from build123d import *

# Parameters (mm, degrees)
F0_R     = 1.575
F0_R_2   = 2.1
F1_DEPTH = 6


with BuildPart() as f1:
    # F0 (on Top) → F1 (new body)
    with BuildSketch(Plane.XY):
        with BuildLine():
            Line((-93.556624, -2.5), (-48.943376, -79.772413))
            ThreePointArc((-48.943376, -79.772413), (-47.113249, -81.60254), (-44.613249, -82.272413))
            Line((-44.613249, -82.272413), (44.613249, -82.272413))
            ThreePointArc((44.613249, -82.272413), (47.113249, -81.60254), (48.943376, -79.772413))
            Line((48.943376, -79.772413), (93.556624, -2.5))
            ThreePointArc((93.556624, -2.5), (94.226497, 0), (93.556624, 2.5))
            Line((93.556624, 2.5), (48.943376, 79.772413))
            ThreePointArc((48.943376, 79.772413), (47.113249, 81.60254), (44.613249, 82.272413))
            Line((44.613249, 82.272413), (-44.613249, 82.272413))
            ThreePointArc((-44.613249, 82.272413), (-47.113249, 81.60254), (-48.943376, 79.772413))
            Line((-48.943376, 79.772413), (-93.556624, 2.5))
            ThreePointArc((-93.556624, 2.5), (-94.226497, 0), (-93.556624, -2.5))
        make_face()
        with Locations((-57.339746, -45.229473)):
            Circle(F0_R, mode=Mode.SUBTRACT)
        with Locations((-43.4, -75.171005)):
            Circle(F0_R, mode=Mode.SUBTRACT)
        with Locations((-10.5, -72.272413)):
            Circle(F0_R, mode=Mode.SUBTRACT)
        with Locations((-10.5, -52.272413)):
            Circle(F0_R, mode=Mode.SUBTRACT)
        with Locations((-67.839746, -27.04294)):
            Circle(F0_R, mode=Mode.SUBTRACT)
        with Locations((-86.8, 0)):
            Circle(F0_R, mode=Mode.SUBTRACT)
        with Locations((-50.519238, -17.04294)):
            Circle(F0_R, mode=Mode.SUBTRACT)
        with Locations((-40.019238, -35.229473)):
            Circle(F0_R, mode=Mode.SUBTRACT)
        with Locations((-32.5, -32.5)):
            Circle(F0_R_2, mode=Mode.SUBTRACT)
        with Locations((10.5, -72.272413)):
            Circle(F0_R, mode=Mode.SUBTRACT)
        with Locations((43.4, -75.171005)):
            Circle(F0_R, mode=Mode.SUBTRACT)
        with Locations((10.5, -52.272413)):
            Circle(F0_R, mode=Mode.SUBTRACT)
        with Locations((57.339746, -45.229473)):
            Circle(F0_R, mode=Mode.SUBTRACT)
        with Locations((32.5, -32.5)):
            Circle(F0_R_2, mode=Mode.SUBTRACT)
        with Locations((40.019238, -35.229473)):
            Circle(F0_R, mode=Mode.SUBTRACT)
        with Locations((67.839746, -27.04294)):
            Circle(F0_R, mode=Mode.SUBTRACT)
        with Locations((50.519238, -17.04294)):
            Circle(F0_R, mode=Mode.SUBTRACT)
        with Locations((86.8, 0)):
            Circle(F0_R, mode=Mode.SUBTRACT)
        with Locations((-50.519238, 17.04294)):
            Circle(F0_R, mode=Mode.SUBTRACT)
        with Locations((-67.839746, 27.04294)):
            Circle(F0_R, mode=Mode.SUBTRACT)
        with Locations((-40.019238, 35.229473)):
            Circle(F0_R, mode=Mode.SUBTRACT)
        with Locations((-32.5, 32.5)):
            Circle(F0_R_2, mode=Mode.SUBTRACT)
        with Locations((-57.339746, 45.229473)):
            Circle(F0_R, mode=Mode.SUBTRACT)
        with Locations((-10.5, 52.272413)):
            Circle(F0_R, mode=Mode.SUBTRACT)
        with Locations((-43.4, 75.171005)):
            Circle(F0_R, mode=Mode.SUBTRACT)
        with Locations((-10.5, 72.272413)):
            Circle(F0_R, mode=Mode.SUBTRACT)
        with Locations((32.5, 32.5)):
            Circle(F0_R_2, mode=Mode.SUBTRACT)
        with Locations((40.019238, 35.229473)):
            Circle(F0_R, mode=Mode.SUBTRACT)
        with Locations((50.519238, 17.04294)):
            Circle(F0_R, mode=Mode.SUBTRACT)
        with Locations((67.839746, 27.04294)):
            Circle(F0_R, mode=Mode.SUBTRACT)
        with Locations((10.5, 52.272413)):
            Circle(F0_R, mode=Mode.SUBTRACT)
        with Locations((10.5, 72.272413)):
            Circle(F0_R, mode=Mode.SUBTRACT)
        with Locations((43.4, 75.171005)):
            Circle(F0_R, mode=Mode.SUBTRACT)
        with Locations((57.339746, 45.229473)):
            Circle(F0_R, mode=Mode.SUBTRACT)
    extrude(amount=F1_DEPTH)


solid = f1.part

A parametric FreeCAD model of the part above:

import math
import FreeCAD as App
import Part
import Sketcher
from FreeCAD import Vector
Q = App.Units.Quantity

doc = App.newDocument("Part")
params = doc.addObject("Spreadsheet::Sheet", "Params")
for row, (alias, value) in enumerate([
    ("sketch1_radius", "5 mm"),
    ("sketch1_diameter", "4.2 mm"),
    ("sketch1_diameter2", "3.15 mm"),
    ("pad1_length", "6 mm"),
], start=1):
    params.set(f"A{row}", alias)
    params.set(f"B{row}", "=" + value)
    params.setAlias(f"B{row}", alias)

body = doc.addObject("PartDesign::Body", "Body")

sketch1 = doc.addObject("Sketcher::SketchObject", "Sketch")
body.addObject(sketch1)
sketch1.AttachmentSupport = (doc.XY_Plane, [""])
sketch1.MapMode = "FlatFace"
sketch1.addGeometry([
    Part.LineSegment(Vector(-93.6, -2.5, 0), Vector(-48.9, -79.8, 0)),
    Part.ArcOfCircle(Part.Circle(Vector(-44.6, -77.3, 0), Vector(0, 0, 1), 5), math.radians(-150), math.radians(-90)),
    Part.LineSegment(Vector(-44.6, -82.3, 0), Vector(44.6, -82.3, 0)),
    Part.ArcOfCircle(Part.Circle(Vector(44.6, -77.3, 0), Vector(0, 0, 1), 5), math.radians(-90), math.radians(-30)),
    Part.LineSegment(Vector(48.9, -79.8, 0), Vector(93.6, -2.5, 0)),
    Part.ArcOfCircle(Part.Circle(Vector(89.2, 0, 0), Vector(0, 0, 1), 5), math.radians(-30), math.radians(30)),
    Part.LineSegment(Vector(93.6, 2.5, 0), Vector(48.9, 79.8, 0)),
    Part.ArcOfCircle(Part.Circle(Vector(44.6, 77.3, 0), Vector(0, 0, 1), 5), math.radians(30), math.radians(90)),
    Part.LineSegment(Vector(44.6, 82.3, 0), Vector(-44.6, 82.3, 0)),
    Part.ArcOfCircle(Part.Circle(Vector(-44.6, 77.3, 0), Vector(0, 0, 1), 5), math.radians(90), math.radians(150)),
    Part.LineSegment(Vector(-48.9, 79.8, 0), Vector(-93.6, 2.5, 0)),
    Part.ArcOfCircle(Part.Circle(Vector(-89.2, 0, 0), Vector(0, 0, 1), 5), math.radians(150), math.radians(210)),
    Part.Circle(Vector(-57.3, -45.2, 0), Vector(0, 0, 1), 1.6),
    Part.Circle(Vector(-43.4, -75.2, 0), Vector(0, 0, 1), 1.6),
    Part.Circle(Vector(-10.5, -72.3, 0), Vector(0, 0, 1), 1.6),
    Part.Circle(Vector(-10.5, -52.3, 0), Vector(0, 0, 1), 1.6),
    Part.Circle(Vector(-67.8, -27, 0), Vector(0, 0, 1), 1.6),
    Part.Circle(Vector(-50.5, -17, 0), Vector(0, 0, 1), 1.6),
    Part.Circle(Vector(-40, -35.2, 0), Vector(0, 0, 1), 1.6),
    Part.Circle(Vector(-32.5, -32.5, 0), Vector(0, 0, 1), 2.1),
    Part.Circle(Vector(10.5, -72.3, 0), Vector(0, 0, 1), 1.6),
    Part.Circle(Vector(43.4, -75.2, 0), Vector(0, 0, 1), 1.6),
    Part.Circle(Vector(10.5, -52.3, 0), Vector(0, 0, 1), 1.6),
    Part.Circle(Vector(57.3, -45.2, 0), Vector(0, 0, 1), 1.6),
    Part.Circle(Vector(32.5, -32.5, 0), Vector(0, 0, 1), 2.1),
    Part.Circle(Vector(40, -35.2, 0), Vector(0, 0, 1), 1.6),
    Part.Circle(Vector(67.8, -27, 0), Vector(0, 0, 1), 1.6),
    Part.Circle(Vector(50.5, -17, 0), Vector(0, 0, 1), 1.6),
    Part.Circle(Vector(-86.8, 0, 0), Vector(0, 0, 1), 1.6),
    Part.Circle(Vector(-50.5, 17, 0), Vector(0, 0, 1), 1.6),
    Part.Circle(Vector(-67.8, 27, 0), Vector(0, 0, 1), 1.6),
    Part.Circle(Vector(-40, 35.2, 0), Vector(0, 0, 1), 1.6),
    Part.Circle(Vector(-32.5, 32.5, 0), Vector(0, 0, 1), 2.1),
    Part.Circle(Vector(-57.3, 45.2, 0), Vector(0, 0, 1), 1.6),
    Part.Circle(Vector(-10.5, 52.3, 0), Vector(0, 0, 1), 1.6),
    Part.Circle(Vector(-43.4, 75.2, 0), Vector(0, 0, 1), 1.6),
    Part.Circle(Vector(-10.5, 72.3, 0), Vector(0, 0, 1), 1.6),
    Part.Circle(Vector(32.5, 32.5, 0), Vector(0, 0, 1), 2.1),
    Part.Circle(Vector(40, 35.2, 0), Vector(0, 0, 1), 1.6),
    Part.Circle(Vector(50.5, 17, 0), Vector(0, 0, 1), 1.6),
    Part.Circle(Vector(86.8, 0, 0), Vector(0, 0, 1), 1.6),
    Part.Circle(Vector(67.8, 27, 0), Vector(0, 0, 1), 1.6),
    Part.Circle(Vector(10.5, 52.3, 0), Vector(0, 0, 1), 1.6),
    Part.Circle(Vector(10.5, 72.3, 0), Vector(0, 0, 1), 1.6),
    Part.Circle(Vector(43.4, 75.2, 0), Vector(0, 0, 1), 1.6),
    Part.Circle(Vector(57.3, 45.2, 0), Vector(0, 0, 1), 1.6),
], False)
sketch1.addConstraint([
    Sketcher.Constraint("Tangent", 0, 2, 1, 1),
    Sketcher.Constraint("Tangent", 1, 2, 2, 1),
    Sketcher.Constraint("Tangent", 2, 2, 3, 1),
    Sketcher.Constraint("Tangent", 3, 2, 4, 1),
    Sketcher.Constraint("Tangent", 4, 2, 5, 1),
    Sketcher.Constraint("Tangent", 5, 2, 6, 1),
    Sketcher.Constraint("Tangent", 6, 2, 7, 1),
    Sketcher.Constraint("Tangent", 7, 2, 8, 1),
    Sketcher.Constraint("Tangent", 8, 2, 9, 1),
    Sketcher.Constraint("Tangent", 9, 2, 10, 1),
    Sketcher.Constraint("Tangent", 10, 2, 11, 1),
    Sketcher.Constraint("Tangent", 11, 2, 0, 1),
    Sketcher.Constraint("Horizontal", 2),
    Sketcher.Constraint("Horizontal", 8),
    Sketcher.Constraint("Equal", 1, 3),
    Sketcher.Constraint("Equal", 3, 5),
    Sketcher.Constraint("Equal", 5, 7),
    Sketcher.Constraint("Equal", 7, 9),
    Sketcher.Constraint("Equal", 9, 11),
    Sketcher.Constraint("Equal", 12, 13),
    Sketcher.Constraint("Equal", 13, 14),
    Sketcher.Constraint("Equal", 14, 15),
    Sketcher.Constraint("Equal", 15, 16),
    Sketcher.Constraint("Equal", 16, 17),
    Sketcher.Constraint("Equal", 17, 18),
    Sketcher.Constraint("Equal", 18, 20),
    Sketcher.Constraint("Equal", 20, 21),
    Sketcher.Constraint("Equal", 21, 22),
    Sketcher.Constraint("Equal", 22, 23),
    Sketcher.Constraint("Equal", 19, 24),
    Sketcher.Constraint("Equal", 23, 25),
    Sketcher.Constraint("Equal", 25, 26),
    Sketcher.Constraint("Equal", 26, 27),
    Sketcher.Constraint("Equal", 27, 28),
    Sketcher.Constraint("Equal", 28, 29),
    Sketcher.Constraint("Equal", 29, 30),
    Sketcher.Constraint("Equal", 30, 31),
    Sketcher.Constraint("Equal", 24, 32),
    Sketcher.Constraint("Equal", 31, 33),
    Sketcher.Constraint("Equal", 33, 34),
    Sketcher.Constraint("Equal", 34, 35),
    Sketcher.Constraint("Equal", 35, 36),
    Sketcher.Constraint("Equal", 32, 37),
    Sketcher.Constraint("Equal", 36, 38),
    Sketcher.Constraint("Equal", 38, 39),
    Sketcher.Constraint("Equal", 39, 40),
    Sketcher.Constraint("Equal", 40, 41),
    Sketcher.Constraint("Equal", 41, 42),
    Sketcher.Constraint("Equal", 42, 43),
    Sketcher.Constraint("Equal", 43, 44),
    Sketcher.Constraint("Equal", 44, 45),
    Sketcher.Constraint("Symmetric", 1, 3, 7, 3, -1, 1),
    Sketcher.Constraint("Symmetric", 5, 3, 11, 3, -1, 1),
    Sketcher.Constraint("Symmetric", 27, 3, 29, 3, -1, 1),
    Sketcher.Constraint("Symmetric", 26, 3, 30, 3, -1, 1),
    Sketcher.Constraint("Symmetric", 25, 3, 31, 3, -1, 1),
    Sketcher.Constraint("Symmetric", 24, 3, 32, 3, -1, 1),
    Sketcher.Constraint("Symmetric", 23, 3, 33, 3, -1, 1),
    Sketcher.Constraint("Symmetric", 22, 3, 34, 3, -1, 1),
    Sketcher.Constraint("Symmetric", 21, 3, 35, 3, -1, 1),
    Sketcher.Constraint("Symmetric", 20, 3, 36, 3, -1, 1),
    Sketcher.Constraint("Symmetric", 19, 3, 37, 3, -1, 1),
    Sketcher.Constraint("Symmetric", 18, 3, 38, 3, -1, 1),
    Sketcher.Constraint("Symmetric", 17, 3, 39, 3, -1, 1),
    Sketcher.Constraint("Symmetric", 28, 3, 40, 3, -1, 1),
    Sketcher.Constraint("Symmetric", 16, 3, 41, 3, -1, 1),
    Sketcher.Constraint("Symmetric", 15, 3, 42, 3, -1, 1),
    Sketcher.Constraint("Symmetric", 14, 3, 43, 3, -1, 1),
    Sketcher.Constraint("Symmetric", 13, 3, 44, 3, -1, 1),
    Sketcher.Constraint("Symmetric", 12, 3, 45, 3, -1, 1),
    Sketcher.Constraint("Symmetric", 14, 3, 20, 3, -2),
    Sketcher.Constraint("Symmetric", 13, 3, 21, 3, -2),
    Sketcher.Constraint("Symmetric", 15, 3, 22, 3, -2),
    Sketcher.Constraint("Symmetric", 12, 3, 23, 3, -2),
    Sketcher.Constraint("Symmetric", 19, 3, 24, 3, -2),
    Sketcher.Constraint("Symmetric", 18, 3, 25, 3, -2),
    Sketcher.Constraint("Symmetric", 16, 3, 26, 3, -2),
    Sketcher.Constraint("Symmetric", 17, 3, 27, 3, -2),
    Sketcher.Constraint("Symmetric", 0, 2, 3, 2, -2),
    Sketcher.Constraint("PointOnObject", 28, 3, -1),
    Sketcher.Constraint("Parallel", 4, 10),
    Sketcher.Constraint("Vertical", 14, 3, 15, 3),
    Sketcher.Constraint("Radius", 1, 5.0),
    Sketcher.Constraint("Diameter", 19, 4.2),
    Sketcher.Constraint("Diameter", 12, 3.15),
    Sketcher.Constraint("Angle", 0, Q("-60 deg")),
    Sketcher.Constraint("DistanceY", 1, 3, 14, 3, 5.0),
    Sketcher.Constraint("DistanceY", 14, 3, 15, 3, 20.0),
    Sketcher.Constraint("DistanceY", 16, 3, 17, 3, 10.0),
    Sketcher.Constraint("DistanceY", 12, 3, 18, 3, 10.0),
    Sketcher.Constraint("DistanceX", 19, 3, 15, 3, 22.0),
    Sketcher.Constraint("DistanceX", 14, 3, 20, 3, 21.0),
    Sketcher.Constraint("DistanceY", 24, 3, 37, 3, 65.0),
    Sketcher.Constraint("DistanceX", 13, 3, -1, 1, 43.4),
    Sketcher.Constraint("DistanceX", 28, 3, -1, 1, 86.8),
    Sketcher.Constraint("DistanceX", 16, 3, 12, 3, 10.5),
    Sketcher.Constraint("DistanceX", 17, 3, 18, 3, 10.5),
    Sketcher.Constraint("DistanceX", 2, 1, 2, 2, 89.226498),
    Sketcher.Constraint("DistanceY", 16, 3, -1, 1, 27.04294),
    Sketcher.Constraint("DistanceX", 3, 3, 5, 3, 44.613248),
    Sketcher.Constraint("DistanceY", 1, 3, 12, 3, 32.04294),
    Sketcher.Constraint("DistanceX", 11, 3, 12, 3, 31.886751),
    Sketcher.Constraint("DistanceY", 13, 3, 12, 3, 29.941532),
    Sketcher.Constraint("DistanceX", 16, 3, 17, 3, 17.320508),
])
sketch1.setExpression("Constraints[82]", "Params.sketch1_radius")
sketch1.setExpression("Constraints[83]", "Params.sketch1_diameter")
sketch1.setExpression("Constraints[84]", "Params.sketch1_diameter2")
pad1 = doc.addObject("PartDesign::Pad", "Pad")
body.addObject(pad1)
pad1.Profile = sketch1
pad1.setExpression("Length", "Params.pad1_length")

doc.recompute()
